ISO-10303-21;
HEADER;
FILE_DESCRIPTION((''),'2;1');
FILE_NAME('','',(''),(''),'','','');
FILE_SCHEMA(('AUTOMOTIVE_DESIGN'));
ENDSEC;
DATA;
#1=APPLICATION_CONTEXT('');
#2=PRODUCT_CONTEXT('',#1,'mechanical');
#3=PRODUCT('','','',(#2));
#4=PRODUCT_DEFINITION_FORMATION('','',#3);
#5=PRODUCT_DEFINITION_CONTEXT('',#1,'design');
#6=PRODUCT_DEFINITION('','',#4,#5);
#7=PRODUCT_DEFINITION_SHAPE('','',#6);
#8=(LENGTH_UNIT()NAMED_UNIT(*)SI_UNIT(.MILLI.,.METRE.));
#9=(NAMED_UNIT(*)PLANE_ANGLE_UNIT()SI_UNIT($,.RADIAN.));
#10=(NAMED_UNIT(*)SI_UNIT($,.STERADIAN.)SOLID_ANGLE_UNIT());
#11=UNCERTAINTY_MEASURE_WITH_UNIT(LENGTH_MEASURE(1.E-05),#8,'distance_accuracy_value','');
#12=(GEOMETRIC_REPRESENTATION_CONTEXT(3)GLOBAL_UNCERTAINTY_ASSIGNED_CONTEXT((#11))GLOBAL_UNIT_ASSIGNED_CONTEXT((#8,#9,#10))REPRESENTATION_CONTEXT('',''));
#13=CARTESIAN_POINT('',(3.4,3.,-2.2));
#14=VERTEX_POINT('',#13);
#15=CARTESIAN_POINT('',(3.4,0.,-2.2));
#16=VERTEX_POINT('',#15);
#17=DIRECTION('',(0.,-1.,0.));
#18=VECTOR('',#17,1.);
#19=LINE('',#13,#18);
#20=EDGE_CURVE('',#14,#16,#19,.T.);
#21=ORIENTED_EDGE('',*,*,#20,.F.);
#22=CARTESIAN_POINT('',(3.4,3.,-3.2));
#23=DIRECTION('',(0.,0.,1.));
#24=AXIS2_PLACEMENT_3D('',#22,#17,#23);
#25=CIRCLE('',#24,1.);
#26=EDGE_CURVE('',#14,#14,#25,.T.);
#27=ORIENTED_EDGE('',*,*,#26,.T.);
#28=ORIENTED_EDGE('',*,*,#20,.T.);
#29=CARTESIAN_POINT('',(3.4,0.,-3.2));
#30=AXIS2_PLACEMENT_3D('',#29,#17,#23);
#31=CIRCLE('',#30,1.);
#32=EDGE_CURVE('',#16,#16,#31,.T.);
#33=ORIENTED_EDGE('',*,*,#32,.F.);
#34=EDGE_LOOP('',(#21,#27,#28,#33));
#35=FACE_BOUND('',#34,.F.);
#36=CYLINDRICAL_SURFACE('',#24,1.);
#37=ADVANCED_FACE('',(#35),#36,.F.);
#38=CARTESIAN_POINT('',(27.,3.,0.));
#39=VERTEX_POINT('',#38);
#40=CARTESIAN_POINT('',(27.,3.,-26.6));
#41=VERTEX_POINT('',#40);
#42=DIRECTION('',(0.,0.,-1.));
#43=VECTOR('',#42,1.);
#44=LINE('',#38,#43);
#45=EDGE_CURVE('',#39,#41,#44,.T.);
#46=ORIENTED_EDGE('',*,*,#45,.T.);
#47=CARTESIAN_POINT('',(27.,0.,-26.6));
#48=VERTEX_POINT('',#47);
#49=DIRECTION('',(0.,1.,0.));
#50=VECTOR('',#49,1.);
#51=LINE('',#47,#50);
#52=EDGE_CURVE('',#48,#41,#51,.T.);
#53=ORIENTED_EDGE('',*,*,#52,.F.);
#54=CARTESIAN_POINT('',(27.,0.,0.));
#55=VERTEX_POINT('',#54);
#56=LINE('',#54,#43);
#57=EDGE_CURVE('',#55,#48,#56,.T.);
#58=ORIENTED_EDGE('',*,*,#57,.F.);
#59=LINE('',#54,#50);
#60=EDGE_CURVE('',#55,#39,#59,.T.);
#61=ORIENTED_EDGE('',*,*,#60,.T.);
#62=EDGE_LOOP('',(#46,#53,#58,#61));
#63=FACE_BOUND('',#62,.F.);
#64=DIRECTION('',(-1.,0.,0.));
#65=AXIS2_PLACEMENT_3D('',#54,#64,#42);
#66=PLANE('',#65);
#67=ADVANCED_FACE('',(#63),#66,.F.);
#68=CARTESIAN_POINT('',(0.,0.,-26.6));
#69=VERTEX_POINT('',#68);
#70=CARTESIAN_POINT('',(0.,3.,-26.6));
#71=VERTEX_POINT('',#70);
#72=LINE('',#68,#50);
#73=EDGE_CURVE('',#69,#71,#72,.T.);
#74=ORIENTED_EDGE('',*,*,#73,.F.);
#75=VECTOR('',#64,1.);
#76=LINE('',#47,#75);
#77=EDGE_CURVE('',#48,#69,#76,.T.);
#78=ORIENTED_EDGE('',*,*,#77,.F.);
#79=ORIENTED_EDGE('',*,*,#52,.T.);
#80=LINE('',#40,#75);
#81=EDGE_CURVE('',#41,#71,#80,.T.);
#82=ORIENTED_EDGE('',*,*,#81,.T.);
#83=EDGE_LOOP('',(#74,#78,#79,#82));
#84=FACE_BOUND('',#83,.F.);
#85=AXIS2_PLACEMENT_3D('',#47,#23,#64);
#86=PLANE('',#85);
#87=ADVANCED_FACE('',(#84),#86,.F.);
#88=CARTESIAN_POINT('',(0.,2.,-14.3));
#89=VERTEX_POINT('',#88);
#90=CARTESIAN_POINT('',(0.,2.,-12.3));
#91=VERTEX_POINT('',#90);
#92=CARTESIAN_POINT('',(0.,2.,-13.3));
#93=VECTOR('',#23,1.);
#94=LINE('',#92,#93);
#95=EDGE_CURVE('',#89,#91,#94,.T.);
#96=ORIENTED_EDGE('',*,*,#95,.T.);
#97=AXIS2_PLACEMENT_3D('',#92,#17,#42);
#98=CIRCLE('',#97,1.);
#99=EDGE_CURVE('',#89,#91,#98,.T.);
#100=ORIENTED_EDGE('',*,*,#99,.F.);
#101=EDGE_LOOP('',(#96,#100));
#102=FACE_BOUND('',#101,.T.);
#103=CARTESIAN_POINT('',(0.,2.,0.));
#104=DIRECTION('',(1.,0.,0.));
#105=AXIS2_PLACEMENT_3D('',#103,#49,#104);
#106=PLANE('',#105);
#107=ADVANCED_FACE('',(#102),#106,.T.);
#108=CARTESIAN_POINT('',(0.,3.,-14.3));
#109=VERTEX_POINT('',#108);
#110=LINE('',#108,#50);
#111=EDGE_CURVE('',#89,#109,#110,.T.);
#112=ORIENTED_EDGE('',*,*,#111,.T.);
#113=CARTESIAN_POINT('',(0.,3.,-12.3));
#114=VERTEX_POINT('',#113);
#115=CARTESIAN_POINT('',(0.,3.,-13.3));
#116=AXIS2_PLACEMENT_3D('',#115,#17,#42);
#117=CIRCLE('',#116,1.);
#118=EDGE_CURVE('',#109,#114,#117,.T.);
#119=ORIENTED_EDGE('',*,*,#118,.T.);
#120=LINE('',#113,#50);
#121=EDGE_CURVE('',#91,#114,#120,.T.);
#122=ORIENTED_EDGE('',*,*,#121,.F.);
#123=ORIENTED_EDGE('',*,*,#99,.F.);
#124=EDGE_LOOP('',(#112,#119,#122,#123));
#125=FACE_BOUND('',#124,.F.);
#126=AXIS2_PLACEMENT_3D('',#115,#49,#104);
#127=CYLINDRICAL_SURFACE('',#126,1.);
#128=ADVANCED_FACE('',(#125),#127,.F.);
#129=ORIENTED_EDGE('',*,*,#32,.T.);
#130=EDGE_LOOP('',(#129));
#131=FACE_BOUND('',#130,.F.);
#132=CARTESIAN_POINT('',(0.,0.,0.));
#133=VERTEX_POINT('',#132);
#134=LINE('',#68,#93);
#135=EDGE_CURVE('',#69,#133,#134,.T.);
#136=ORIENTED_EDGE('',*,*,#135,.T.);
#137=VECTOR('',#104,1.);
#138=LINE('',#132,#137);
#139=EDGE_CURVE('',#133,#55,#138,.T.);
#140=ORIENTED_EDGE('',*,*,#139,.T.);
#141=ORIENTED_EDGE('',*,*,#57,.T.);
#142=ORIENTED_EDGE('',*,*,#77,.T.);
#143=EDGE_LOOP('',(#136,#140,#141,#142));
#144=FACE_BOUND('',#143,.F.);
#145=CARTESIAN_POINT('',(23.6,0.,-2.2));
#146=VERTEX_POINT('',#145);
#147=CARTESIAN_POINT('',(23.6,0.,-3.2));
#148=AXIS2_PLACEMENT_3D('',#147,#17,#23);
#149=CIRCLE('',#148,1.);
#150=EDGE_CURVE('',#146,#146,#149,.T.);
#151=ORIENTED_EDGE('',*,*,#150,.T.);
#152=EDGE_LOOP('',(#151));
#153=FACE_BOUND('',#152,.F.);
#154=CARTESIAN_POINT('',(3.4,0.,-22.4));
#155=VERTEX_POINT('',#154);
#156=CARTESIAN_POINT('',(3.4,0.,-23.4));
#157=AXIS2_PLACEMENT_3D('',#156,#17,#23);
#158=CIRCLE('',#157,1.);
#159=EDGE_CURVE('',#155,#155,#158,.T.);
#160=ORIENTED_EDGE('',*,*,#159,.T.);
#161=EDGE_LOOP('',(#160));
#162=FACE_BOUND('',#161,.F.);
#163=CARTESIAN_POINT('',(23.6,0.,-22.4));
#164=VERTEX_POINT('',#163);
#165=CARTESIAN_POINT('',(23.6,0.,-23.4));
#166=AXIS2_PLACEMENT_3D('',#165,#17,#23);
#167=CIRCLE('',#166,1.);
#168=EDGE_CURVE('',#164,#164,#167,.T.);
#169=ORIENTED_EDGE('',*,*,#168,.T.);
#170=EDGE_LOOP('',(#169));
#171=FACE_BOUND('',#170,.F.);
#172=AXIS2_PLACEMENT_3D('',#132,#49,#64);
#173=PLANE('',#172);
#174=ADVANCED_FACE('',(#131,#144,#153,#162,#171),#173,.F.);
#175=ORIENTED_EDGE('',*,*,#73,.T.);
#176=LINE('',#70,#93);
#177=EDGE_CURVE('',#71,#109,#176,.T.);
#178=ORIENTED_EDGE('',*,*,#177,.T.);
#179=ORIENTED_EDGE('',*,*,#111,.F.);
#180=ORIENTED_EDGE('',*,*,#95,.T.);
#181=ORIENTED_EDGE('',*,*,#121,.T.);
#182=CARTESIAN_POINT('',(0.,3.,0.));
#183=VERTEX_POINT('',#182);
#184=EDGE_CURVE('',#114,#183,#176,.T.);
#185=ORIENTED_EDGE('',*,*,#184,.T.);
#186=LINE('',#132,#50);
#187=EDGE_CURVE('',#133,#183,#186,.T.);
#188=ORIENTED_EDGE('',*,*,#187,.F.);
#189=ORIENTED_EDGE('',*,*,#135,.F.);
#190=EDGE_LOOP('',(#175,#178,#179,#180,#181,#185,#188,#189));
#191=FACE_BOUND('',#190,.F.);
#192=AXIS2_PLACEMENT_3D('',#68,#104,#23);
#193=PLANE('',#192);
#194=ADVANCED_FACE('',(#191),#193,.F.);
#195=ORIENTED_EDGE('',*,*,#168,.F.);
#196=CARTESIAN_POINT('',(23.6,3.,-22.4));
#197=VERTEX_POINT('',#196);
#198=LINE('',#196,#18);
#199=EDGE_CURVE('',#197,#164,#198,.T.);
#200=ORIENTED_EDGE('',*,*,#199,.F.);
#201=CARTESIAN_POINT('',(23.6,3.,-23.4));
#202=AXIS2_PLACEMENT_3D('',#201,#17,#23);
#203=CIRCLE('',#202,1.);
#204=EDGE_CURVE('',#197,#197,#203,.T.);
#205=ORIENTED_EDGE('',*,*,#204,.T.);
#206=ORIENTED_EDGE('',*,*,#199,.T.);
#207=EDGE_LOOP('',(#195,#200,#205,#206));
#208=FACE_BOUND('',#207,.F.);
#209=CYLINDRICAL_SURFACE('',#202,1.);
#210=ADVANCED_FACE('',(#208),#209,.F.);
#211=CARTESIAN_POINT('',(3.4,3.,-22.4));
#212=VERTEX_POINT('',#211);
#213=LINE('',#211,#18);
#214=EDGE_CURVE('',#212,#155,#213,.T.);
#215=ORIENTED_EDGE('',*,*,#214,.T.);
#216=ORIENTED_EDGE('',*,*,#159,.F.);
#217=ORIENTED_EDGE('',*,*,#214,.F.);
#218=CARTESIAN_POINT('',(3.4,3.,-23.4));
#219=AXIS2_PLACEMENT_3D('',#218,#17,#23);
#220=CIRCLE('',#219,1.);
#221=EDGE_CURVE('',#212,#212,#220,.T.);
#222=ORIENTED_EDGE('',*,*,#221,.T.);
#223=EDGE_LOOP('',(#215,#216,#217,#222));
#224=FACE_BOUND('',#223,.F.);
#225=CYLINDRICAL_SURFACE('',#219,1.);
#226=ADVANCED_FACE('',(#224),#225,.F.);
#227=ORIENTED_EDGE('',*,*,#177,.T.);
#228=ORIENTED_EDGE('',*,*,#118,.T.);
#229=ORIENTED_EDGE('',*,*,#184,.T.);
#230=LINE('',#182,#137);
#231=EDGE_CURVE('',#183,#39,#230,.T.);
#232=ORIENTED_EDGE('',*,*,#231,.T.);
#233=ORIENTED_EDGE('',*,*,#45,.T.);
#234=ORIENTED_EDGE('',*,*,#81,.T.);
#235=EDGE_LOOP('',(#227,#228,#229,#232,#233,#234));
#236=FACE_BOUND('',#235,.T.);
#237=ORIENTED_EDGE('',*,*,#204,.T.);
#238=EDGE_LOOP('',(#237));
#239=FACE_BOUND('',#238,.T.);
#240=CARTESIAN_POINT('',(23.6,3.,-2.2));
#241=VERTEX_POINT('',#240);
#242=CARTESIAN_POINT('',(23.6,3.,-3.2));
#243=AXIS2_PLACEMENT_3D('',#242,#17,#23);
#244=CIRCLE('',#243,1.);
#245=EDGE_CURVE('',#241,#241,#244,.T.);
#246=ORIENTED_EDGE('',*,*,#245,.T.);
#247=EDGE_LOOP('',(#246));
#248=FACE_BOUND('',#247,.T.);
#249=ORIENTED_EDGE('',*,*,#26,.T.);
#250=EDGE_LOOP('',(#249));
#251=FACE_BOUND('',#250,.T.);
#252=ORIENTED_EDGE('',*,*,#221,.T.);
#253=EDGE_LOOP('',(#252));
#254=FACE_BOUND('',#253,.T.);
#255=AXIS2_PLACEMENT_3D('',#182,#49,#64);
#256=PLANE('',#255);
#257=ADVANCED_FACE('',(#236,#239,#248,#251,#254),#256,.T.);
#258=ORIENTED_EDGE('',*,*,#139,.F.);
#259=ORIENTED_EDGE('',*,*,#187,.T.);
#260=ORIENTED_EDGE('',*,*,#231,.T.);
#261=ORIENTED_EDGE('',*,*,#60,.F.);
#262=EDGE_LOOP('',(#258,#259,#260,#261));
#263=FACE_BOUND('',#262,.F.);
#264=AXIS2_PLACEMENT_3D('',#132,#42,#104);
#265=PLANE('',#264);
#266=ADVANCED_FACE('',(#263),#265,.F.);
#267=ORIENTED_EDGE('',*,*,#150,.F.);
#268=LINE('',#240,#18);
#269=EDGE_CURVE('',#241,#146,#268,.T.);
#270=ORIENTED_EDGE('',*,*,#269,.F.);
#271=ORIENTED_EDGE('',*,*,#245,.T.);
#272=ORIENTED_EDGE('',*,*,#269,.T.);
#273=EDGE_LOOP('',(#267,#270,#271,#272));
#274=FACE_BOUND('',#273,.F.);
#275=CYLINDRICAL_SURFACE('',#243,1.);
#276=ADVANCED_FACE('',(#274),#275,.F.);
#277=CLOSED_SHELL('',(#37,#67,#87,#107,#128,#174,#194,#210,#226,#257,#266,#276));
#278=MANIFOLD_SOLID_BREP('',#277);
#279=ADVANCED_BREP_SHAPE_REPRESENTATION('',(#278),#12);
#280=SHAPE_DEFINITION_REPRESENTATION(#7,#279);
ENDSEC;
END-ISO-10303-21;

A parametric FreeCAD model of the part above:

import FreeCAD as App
import Part
import Sketcher

V = App.Vector
Q = App.Units.Quantity


def add_polygon(sketch, points):
    """Adds a closed chain of lines whose ends are joined by coincident constraints."""
    first, n = sketch.GeometryCount, len(points)
    for a, b in zip(points, points[1:] + points[:1]):
        sketch.addGeometry(Part.LineSegment(App.Vector(*a, 0), App.Vector(*b, 0)), False)
    for i in range(n):
        sketch.addConstraint(Sketcher.Constraint("Coincident", first + i, 2, first + (i + 1) % n, 1))

doc = App.newDocument("Part")
params = doc.addObject("Spreadsheet::Sheet", "Params")
for row, (alias, value) in enumerate([
    ("sketch1_width", "27 mm"),
    ("sketch1_height", "26.6 mm"),
    ("pad1_length", "3 mm"),
    ("sketch2_diameter", "2 mm"),
    ("pocket1_length", "1 mm"),
    ("sketch3_diameter", "2 mm"),
    ("hole_diameter", "2 mm"),
], start=1):
    params.set(f"A{row}", alias)
    params.set(f"B{row}", "=" + value)
    params.setAlias(f"B{row}", alias)

body = doc.addObject("PartDesign::Body", "Body")

# Sketch on XZ plane
sketch1 = doc.addObject("Sketcher::SketchObject", "Sketch")
body.addObject(sketch1)
sketch1.AttachmentSupport = (doc.XZ_Plane, [""])
sketch1.MapMode = "FlatFace"
add_polygon(sketch1, [(0, -27), (0, 0), (27, 0), (27, -27)])  # lines 0-3
sketch1.addConstraint(Sketcher.Constraint("Vertical", 0))
sketch1.addConstraint(Sketcher.Constraint("Horizontal", 1))
sketch1.addConstraint(Sketcher.Constraint("Vertical", 2))
sketch1.addConstraint(Sketcher.Constraint("Horizontal", 3))
sketch1.addConstraint(Sketcher.Constraint("Coincident", 0, 2, -1, 1))
sketch1.addConstraint(Sketcher.Constraint("DistanceX", 1, 1, 1, 2, Q("27 mm")))
sketch1.addConstraint(Sketcher.Constraint("DistanceY", 0, 1, 0, 2, Q("26.6 mm")))
sketch1.setExpression("Constraints[9]", "Params.sketch1_width")
sketch1.setExpression("Constraints[10]", "Params.sketch1_height")
pad1 = doc.addObject("PartDesign::Pad", "Pad")
body.addObject(pad1)
pad1.Profile = sketch1
pad1.setExpression("Length", "Params.pad1_length")
pad1.Reversed = True

# Sketch on XZ plane
sketch2 = doc.addObject("Sketcher::SketchObject", "Sketch001")
body.addObject(sketch2)
sketch2.AttachmentSupport = (doc.XZ_Plane, [""])
sketch2.MapMode = "FlatFace"
sketch2.AttachmentOffset = App.Placement(V(0, 0, -3), App.Rotation())
sketch2.addGeometry(Part.Circle(V(0, -13.3, 0), V(0, 0, 1), 1), False)
sketch2.addConstraint(Sketcher.Constraint("PointOnObject", 0, 3, -2))
sketch2.addConstraint(Sketcher.Constraint("Diameter", 0, Q("2 mm")))
sketch2.addConstraint(Sketcher.Constraint("DistanceY", 0, 3, -1, 1, Q("13.3 mm")))
sketch2.setExpression("Constraints[1]", "Params.sketch2_diameter")
pocket1 = doc.addObject("PartDesign::Pocket", "Pocket")
body.addObject(pocket1)
pocket1.Profile = sketch2
pocket1.setExpression("Length", "Params.pocket1_length")
pocket1.Reversed = True

# Sketch on XZ plane
sketch3 = doc.addObject("Sketcher::SketchObject", "Sketch002")
body.addObject(sketch3)
sketch3.AttachmentSupport = (doc.XZ_Plane, [""])
sketch3.MapMode = "FlatFace"
sketch3.AttachmentOffset = App.Placement(V(0, 0, -3), App.Rotation())
sketch3.addGeometry(Part.Circle(V(3.4, -3.2, 0), V(0, 0, 1), 1), False)
sketch3.addGeometry(Part.Circle(V(23.6, -3.2, 0), V(0, 0, 1), 1), False)
sketch3.addGeometry(Part.Circle(V(23.6, -23.4, 0), V(0, 0, 1), 1), False)
sketch3.addGeometry(Part.Circle(V(3.4, -23.4, 0), V(0, 0, 1), 1), False)
sketch3.addConstraint(Sketcher.Constraint("Equal", 0, 1))
sketch3.addConstraint(Sketcher.Constraint("Equal", 1, 2))
sketch3.addConstraint(Sketcher.Constraint("Equal", 2, 3))
sketch3.addConstraint(Sketcher.Constraint("Horizontal", 0, 3, 1, 3))
sketch3.addConstraint(Sketcher.Constraint("Horizontal", 2, 3, 3, 3))
sketch3.addConstraint(Sketcher.Constraint("Vertical", 1, 3, 2, 3))
sketch3.addConstraint(Sketcher.Constraint("Vertical", 0, 3, 3, 3))
sketch3.addConstraint(Sketcher.Constraint("Diameter", 0, Q("2 mm")))
sketch3.addConstraint(Sketcher.Constraint("DistanceX", -1, 1, 0, 3, Q("3.4 mm")))
sketch3.addConstraint(Sketcher.Constraint("DistanceY", 0, 3, -1, 1, Q("3.2 mm")))
sketch3.addConstraint(Sketcher.Constraint("DistanceX", -1, 1, 1, 3, Q("23.6 mm")))
sketch3.addConstraint(Sketcher.Constraint("DistanceY", 2, 3, -1, 1, Q("23.4 mm")))
sketch3.setExpression("Constraints[7]", "Params.sketch3_diameter")
doc.recompute()
hole = doc.addObject("PartDesign::Hole", "Hole")
body.addObject(hole)
hole.Profile = sketch3
hole.ThreadType = "None"
hole.setExpression("Diameter", "Params.hole_diameter")
hole.DepthType = "ThroughAll"
hole.Reversed = True

doc.recompute()
